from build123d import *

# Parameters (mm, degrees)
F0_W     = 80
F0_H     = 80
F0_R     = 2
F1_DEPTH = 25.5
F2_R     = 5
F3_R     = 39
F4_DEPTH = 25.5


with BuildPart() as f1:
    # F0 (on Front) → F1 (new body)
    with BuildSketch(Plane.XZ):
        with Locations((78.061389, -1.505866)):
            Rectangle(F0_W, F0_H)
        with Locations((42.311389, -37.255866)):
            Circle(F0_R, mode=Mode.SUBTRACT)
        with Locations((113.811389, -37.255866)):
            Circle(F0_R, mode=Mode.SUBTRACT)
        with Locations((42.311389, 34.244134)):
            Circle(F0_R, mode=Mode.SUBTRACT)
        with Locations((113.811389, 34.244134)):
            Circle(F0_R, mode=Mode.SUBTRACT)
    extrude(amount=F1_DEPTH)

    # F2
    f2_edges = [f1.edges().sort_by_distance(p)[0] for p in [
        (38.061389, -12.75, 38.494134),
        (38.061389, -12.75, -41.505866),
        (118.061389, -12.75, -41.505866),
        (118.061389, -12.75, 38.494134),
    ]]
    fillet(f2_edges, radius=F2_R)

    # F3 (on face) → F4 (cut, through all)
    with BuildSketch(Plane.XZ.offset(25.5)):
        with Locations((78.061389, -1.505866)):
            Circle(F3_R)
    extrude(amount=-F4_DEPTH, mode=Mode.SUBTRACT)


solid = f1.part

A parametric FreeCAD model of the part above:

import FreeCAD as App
import Part
import Sketcher
Q = App.Units.Quantity


def edges_at(feature, points):
    """Names of the edges that pass closest to the given points."""
    edges = feature.Shape.Edges
    near = lambda p: min(range(len(edges)), key=lambda i: edges[i].distToShape(Part.Vertex(*p))[0])
    return sorted({f"Edge{near(p) + 1}" for p in points})

doc = App.newDocument("Part")
body = doc.addObject("PartDesign::Body", "Body")

sketch1 = doc.addObject("Sketcher::SketchObject", "Sketch")
body.addObject(sketch1)
sketch1.AttachmentSupport = (doc.XZ_Plane, [""])
sketch1.MapMode = "FlatFace"
sketch1.addGeometry([
    Part.LineSegment(App.Vector(38.061389, 38.494134, 0), App.Vector(38.061389, -41.505866, 0)),
    Part.LineSegment(App.Vector(38.061389, -41.505866, 0), App.Vector(118.061389, -41.505866, 0)),
    Part.LineSegment(App.Vector(118.061389, -41.505866, 0), App.Vector(118.061389, 38.494134, 0)),
    Part.LineSegment(App.Vector(118.061389, 38.494134, 0), App.Vector(38.061389, 38.494134, 0)),
    Part.Circle(App.Vector(42.311389, -37.255866, 0), App.Vector(0, 0, 1), 2),
    Part.Circle(App.Vector(113.811389, -37.255866, 0), App.Vector(0, 0, 1), 2),
    Part.Circle(App.Vector(42.311389, 34.244134, 0), App.Vector(0, 0, 1), 2),
    Part.Circle(App.Vector(113.811389, 34.244134, 0), App.Vector(0, 0, 1), 2),
], False)
sketch1.addConstraint([
    Sketcher.Constraint("Coincident", 0, 2, 1, 1),
    Sketcher.Constraint("Coincident", 1, 2, 2, 1),
    Sketcher.Constraint("Coincident", 2, 2, 3, 1),
    Sketcher.Constraint("Coincident", 3, 2, 0, 1),
    Sketcher.Constraint("Vertical", 0),
    Sketcher.Constraint("Horizontal", 1),
    Sketcher.Constraint("Vertical", 2),
    Sketcher.Constraint("Horizontal", 3),
    Sketcher.Constraint("Equal", 4, 5),
    Sketcher.Constraint("Equal", 5, 6),
    Sketcher.Constraint("Equal", 6, 7),
    Sketcher.Constraint("Horizontal", 4, 3, 5, 3),
    Sketcher.Constraint("Horizontal", 6, 3, 7, 3),
    Sketcher.Constraint("Vertical", 4, 3, 6, 3),
    Sketcher.Constraint("Vertical", 5, 3, 7, 3),
    Sketcher.Constraint("Equal", 3, 0),
    Sketcher.Constraint("Diameter", 4, Q("4 mm")),
    Sketcher.Constraint("DistanceX", 1, 1, 1, 2, Q("80 mm")),
    Sketcher.Constraint("DistanceX", 4, 3, 5, 3, Q("71.5 mm")),
    Sketcher.Constraint("DistanceY", 4, 3, 6, 3, Q("71.5 mm")),
    Sketcher.Constraint("DistanceX", 0, 2, 4, 3, Q("4.25 mm")),
    Sketcher.Constraint("DistanceY", 0, 2, 4, 3, Q("4.25 mm")),
    Sketcher.Constraint("DistanceX", -1, 1, 4, 3, Q("42.311389 mm")),
    Sketcher.Constraint("DistanceY", 4, 3, -1, 1, Q("37.255866 mm")),
])
pad1 = doc.addObject("PartDesign::Pad", "Pad")
body.addObject(pad1)
pad1.Profile = sketch1
pad1.Length = 25.5
doc.recompute()

fillet = doc.addObject("PartDesign::Fillet", "Fillet")
body.addObject(fillet)
fillet.Base = (pad1, edges_at(pad1, [
    (38.061, -12.75, 38.494),
    (38.061, -12.75, -41.506),
    (118.061, -12.75, -41.506),
    (118.061, -12.75, 38.494),
]))
fillet.Radius = 5

sketch2 = doc.addObject("Sketcher::SketchObject", "Sketch001")
body.addObject(sketch2)
sketch2.AttachmentSupport = (doc.XZ_Plane, [""])
sketch2.MapMode = "FlatFace"
sketch2.AttachmentOffset = App.Placement(App.Vector(0, 0, 25.5), App.Rotation())
sketch2.addGeometry(Part.Circle(App.Vector(78.061389, -1.505866, 0), App.Vector(0, 0, 1), 39), False)
sketch2.addConstraint([
    Sketcher.Constraint("Diameter", 0, Q("78 mm")),
    Sketcher.Constraint("DistanceX", -1, 1, 0, 3, Q("78.061389 mm")),
    Sketcher.Constraint("DistanceY", 0, 3, -1, 1, Q("1.505866 mm")),
])
pocket1 = doc.addObject("PartDesign::Pocket", "Pocket")
body.addObject(pocket1)
pocket1.Profile = sketch2
pocket1.Type = "ThroughAll"

doc.recompute()
